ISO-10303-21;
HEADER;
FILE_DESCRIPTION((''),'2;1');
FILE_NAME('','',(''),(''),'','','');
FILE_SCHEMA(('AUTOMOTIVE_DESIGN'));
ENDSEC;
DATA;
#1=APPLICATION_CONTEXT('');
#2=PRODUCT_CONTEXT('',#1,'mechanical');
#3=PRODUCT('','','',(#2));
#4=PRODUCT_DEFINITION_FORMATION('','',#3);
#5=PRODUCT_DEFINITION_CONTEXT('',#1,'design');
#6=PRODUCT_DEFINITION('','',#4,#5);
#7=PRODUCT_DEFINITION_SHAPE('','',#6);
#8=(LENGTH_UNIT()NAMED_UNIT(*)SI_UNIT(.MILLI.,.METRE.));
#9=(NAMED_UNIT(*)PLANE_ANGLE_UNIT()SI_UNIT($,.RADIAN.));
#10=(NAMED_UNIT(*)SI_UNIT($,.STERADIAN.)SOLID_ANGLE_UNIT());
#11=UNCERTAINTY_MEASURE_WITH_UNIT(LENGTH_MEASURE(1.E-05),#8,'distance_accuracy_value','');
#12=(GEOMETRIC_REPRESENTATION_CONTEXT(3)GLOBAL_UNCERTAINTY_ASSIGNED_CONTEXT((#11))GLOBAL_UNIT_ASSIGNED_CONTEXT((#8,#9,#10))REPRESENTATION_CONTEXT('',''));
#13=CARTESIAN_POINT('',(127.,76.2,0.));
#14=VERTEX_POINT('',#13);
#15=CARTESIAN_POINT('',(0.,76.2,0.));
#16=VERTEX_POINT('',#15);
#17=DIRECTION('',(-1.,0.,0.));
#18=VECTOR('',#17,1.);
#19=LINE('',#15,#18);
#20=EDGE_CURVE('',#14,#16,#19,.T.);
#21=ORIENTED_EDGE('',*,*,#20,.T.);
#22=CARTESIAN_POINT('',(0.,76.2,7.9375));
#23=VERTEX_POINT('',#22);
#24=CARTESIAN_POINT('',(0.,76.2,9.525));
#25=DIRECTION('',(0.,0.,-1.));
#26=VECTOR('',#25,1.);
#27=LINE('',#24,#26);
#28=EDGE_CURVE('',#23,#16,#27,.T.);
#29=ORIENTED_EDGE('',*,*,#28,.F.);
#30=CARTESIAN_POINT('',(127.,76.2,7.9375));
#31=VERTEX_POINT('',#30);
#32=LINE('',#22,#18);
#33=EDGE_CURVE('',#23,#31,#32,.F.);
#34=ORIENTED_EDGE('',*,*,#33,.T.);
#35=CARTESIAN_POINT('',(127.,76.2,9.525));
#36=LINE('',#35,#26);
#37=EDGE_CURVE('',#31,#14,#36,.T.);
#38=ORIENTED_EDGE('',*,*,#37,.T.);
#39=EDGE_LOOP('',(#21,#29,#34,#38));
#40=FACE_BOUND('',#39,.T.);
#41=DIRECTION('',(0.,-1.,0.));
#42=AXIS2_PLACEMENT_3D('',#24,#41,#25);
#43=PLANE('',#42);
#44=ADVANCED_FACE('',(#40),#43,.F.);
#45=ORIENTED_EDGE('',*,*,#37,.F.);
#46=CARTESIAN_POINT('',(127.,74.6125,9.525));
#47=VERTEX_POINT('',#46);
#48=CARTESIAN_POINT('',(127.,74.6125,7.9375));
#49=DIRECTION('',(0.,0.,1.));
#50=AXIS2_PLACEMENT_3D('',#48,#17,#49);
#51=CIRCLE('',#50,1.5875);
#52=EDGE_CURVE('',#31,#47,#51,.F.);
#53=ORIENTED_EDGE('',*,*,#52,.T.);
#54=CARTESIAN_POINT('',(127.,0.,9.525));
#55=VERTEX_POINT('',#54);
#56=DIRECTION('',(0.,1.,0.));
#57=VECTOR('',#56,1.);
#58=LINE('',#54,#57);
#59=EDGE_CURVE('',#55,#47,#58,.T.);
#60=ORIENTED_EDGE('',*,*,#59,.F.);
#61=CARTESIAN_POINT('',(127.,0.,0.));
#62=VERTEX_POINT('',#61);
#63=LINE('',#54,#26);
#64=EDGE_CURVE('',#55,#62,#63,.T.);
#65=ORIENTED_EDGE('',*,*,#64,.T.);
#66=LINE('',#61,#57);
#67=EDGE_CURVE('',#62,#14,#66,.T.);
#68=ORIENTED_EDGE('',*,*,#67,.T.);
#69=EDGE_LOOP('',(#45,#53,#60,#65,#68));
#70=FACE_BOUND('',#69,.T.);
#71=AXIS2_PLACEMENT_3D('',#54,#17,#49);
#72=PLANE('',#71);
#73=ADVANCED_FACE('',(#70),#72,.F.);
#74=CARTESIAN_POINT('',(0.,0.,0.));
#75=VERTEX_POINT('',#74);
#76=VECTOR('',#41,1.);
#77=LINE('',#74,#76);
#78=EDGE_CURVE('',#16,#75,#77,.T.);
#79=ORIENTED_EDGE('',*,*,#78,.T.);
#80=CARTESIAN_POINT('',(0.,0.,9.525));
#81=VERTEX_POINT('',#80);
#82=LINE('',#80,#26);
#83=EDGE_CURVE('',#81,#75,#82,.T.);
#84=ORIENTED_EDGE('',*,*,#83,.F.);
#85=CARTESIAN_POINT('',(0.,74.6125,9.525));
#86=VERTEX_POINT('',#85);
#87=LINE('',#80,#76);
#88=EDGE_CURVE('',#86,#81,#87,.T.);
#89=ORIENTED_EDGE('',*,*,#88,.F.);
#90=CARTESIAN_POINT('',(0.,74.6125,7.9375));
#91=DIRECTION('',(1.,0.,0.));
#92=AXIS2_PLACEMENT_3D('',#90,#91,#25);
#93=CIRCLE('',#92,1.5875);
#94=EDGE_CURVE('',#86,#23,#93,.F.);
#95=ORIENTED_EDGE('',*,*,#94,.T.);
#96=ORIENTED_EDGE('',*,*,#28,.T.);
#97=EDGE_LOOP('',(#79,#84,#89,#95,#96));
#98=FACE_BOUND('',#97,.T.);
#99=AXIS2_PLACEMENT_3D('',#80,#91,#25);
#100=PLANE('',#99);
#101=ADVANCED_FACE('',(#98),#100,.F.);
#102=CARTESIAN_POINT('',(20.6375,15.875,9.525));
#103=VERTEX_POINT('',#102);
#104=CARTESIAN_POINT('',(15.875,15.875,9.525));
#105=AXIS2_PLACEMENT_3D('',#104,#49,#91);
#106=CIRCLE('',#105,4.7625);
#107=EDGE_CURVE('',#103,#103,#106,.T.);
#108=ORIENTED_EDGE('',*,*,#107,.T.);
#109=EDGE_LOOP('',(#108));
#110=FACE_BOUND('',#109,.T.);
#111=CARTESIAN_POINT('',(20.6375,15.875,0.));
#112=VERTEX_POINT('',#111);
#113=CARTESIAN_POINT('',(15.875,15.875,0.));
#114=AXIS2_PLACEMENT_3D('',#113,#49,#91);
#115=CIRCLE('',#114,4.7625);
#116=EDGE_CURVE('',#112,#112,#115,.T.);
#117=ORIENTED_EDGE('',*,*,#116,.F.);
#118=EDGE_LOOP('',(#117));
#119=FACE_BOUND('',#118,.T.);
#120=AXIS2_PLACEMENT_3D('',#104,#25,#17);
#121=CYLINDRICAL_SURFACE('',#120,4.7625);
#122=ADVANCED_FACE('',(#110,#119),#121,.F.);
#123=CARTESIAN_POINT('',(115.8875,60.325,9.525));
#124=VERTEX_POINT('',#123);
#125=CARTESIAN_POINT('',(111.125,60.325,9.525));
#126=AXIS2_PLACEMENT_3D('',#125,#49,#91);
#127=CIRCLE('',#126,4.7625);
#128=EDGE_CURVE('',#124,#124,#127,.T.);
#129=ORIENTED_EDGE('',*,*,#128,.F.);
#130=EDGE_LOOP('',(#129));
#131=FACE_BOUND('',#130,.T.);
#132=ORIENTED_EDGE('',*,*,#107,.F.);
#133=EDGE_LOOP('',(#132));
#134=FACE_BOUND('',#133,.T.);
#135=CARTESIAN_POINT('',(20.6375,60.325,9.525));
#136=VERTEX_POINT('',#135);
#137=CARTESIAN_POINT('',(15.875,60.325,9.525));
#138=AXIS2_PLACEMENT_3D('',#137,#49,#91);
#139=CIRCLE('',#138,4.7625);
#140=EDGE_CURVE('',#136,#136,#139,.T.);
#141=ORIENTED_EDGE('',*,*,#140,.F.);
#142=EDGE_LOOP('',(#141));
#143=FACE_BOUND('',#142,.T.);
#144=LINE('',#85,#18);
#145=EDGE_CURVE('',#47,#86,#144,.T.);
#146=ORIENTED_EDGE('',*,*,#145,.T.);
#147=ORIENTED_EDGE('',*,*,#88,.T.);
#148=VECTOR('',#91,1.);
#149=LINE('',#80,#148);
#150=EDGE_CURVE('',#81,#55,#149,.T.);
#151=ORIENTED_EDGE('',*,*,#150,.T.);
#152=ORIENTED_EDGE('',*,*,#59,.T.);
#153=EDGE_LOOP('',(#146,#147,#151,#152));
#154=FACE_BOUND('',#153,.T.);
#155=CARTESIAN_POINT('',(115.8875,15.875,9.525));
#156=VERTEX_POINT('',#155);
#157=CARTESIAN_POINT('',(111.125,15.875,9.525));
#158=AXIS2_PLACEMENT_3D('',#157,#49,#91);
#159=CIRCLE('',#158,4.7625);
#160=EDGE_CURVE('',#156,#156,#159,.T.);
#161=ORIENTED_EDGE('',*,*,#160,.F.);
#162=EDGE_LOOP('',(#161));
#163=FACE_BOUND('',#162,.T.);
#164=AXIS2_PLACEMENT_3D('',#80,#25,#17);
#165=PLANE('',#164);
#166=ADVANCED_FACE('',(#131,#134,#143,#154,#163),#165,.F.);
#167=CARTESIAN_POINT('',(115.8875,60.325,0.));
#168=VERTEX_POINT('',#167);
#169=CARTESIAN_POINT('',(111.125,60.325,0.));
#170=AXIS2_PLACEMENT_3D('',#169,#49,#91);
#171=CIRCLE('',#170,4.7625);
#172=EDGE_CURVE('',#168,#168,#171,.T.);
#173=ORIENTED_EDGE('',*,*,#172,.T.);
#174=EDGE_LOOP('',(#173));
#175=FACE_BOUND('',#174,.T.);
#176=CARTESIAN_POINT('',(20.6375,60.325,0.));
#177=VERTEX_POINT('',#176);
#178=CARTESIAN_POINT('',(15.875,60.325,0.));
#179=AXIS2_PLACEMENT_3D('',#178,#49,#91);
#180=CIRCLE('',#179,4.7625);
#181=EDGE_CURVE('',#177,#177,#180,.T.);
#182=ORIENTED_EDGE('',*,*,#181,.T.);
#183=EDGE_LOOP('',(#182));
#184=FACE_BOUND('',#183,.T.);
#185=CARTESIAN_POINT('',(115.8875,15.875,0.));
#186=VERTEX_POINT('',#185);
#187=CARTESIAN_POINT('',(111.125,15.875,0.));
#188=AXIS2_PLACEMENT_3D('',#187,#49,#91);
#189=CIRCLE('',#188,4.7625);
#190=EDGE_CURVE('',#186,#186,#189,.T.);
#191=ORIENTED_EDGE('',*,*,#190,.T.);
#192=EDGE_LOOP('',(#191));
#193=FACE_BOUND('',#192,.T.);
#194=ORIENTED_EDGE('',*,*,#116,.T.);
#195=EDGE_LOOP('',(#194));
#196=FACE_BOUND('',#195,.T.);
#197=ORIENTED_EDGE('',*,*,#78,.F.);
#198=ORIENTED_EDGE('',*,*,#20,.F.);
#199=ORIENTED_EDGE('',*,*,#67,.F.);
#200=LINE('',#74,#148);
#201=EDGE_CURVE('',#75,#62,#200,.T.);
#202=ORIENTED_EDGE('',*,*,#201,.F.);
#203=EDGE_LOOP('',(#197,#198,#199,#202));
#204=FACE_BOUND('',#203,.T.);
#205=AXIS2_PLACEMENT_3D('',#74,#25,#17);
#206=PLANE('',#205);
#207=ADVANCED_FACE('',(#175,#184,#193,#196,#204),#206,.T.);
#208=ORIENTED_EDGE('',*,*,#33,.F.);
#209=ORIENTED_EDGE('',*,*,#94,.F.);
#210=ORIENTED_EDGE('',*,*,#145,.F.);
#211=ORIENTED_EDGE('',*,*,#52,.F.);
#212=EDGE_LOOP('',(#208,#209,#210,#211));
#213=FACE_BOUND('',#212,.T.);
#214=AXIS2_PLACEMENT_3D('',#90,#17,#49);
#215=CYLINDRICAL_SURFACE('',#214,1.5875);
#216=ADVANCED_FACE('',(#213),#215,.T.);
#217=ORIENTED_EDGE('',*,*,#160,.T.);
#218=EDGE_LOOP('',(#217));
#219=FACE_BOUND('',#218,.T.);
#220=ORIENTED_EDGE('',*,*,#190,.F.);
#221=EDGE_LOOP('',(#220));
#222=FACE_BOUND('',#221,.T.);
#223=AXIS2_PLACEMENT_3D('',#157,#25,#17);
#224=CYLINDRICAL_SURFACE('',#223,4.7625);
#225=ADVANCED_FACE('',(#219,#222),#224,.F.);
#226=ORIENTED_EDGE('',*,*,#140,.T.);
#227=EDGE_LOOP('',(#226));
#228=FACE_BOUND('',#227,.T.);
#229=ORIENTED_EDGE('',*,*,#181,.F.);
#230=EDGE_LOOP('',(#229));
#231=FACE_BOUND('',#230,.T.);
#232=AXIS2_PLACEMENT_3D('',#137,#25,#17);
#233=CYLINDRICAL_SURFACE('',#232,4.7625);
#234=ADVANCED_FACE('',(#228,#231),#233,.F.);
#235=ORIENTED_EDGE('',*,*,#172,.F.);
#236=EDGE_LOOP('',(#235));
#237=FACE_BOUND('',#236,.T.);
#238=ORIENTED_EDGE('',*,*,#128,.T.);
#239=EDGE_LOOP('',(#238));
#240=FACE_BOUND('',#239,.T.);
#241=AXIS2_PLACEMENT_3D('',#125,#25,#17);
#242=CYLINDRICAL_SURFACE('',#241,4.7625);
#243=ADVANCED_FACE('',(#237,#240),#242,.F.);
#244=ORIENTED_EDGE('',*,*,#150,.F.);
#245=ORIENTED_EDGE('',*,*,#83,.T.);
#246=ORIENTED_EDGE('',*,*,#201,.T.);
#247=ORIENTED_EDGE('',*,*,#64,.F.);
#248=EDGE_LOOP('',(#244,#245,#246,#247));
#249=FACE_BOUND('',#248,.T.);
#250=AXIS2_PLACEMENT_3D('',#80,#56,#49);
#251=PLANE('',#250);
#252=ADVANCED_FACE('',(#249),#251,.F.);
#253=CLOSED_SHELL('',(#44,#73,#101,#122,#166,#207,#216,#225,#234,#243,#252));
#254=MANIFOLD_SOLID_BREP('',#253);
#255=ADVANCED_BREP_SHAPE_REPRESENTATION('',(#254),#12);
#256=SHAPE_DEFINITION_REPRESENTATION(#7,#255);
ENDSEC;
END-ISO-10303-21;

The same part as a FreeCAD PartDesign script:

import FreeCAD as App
import Part
import Sketcher
from FreeCAD import Vector
Q = App.Units.Quantity


def edges_at(feature, points):
    """Names of the edges that pass closest to the given points."""
    edges = feature.Shape.Edges
    near = lambda p: min(range(len(edges)), key=lambda i: edges[i].distToShape(Part.Vertex(*p))[0])
    return sorted({f"Edge{near(p) + 1}" for p in points})

doc = App.newDocument("Part")
body = doc.addObject("PartDesign::Body", "Body")

# Sketch on XY plane
sketch1 = body.newObject("Sketcher::SketchObject", "Sketch")
sketch1.AttachmentSupport = (doc.getObject("XY_Plane"), [""])
sketch1.MapMode = "FlatFace"
sketch1.addGeometry(Part.LineSegment(Vector(0, 76, 0), Vector(0, 0, 0)), False)
sketch1.addGeometry(Part.LineSegment(Vector(0, 0, 0), Vector(127, 0, 0)), False)
sketch1.addGeometry(Part.LineSegment(Vector(127, 0, 0), Vector(127, 76, 0)), False)
sketch1.addGeometry(Part.LineSegment(Vector(127, 76, 0), Vector(0, 76, 0)), False)
sketch1.addConstraint(Sketcher.Constraint("Coincident", 0, 2, 1, 1))
sketch1.addConstraint(Sketcher.Constraint("Coincident", 1, 2, 2, 1))
sketch1.addConstraint(Sketcher.Constraint("Coincident", 2, 2, 3, 1))
sketch1.addConstraint(Sketcher.Constraint("Coincident", 3, 2, 0, 1))
sketch1.addConstraint(Sketcher.Constraint("Vertical", 0))
sketch1.addConstraint(Sketcher.Constraint("Horizontal", 1))
sketch1.addConstraint(Sketcher.Constraint("Vertical", 2))
sketch1.addConstraint(Sketcher.Constraint("Horizontal", 3))
sketch1.addConstraint(Sketcher.Constraint("Coincident", 0, 2, -1, 1))
sketch1.addConstraint(Sketcher.Constraint("DistanceX", 1, 1, 1, 2, Q("5 in")))
sketch1.addConstraint(Sketcher.Constraint("DistanceY", 0, 2, 0, 1, Q("3 in")))
pad1 = body.newObject("PartDesign::Pad", "Pad")
pad1.Profile = sketch1
pad1.Length = Q("0.375 in")

# Sketch on XY plane
sketch2 = body.newObject("Sketcher::SketchObject", "Sketch001")
sketch2.AttachmentSupport = (doc.getObject("XY_Plane"), [""])
sketch2.MapMode = "FlatFace"
sketch2.addGeometry(Part.Circle(Vector(15.9, 15.9, 0), Vector(0, 0, 1), 4.8), False)
sketch2.addGeometry(Part.Circle(Vector(111.1, 15.9, 0), Vector(0, 0, 1), 4.8), False)
sketch2.addGeometry(Part.Circle(Vector(15.9, 60.3, 0), Vector(0, 0, 1), 4.8), False)
sketch2.addGeometry(Part.Circle(Vector(111.1, 60.3, 0), Vector(0, 0, 1), 4.8), False)
sketch2.addConstraint(Sketcher.Constraint("Equal", 0, 1))
sketch2.addConstraint(Sketcher.Constraint("Equal", 1, 2))
sketch2.addConstraint(Sketcher.Constraint("Equal", 2, 3))
sketch2.addConstraint(Sketcher.Constraint("Horizontal", 0, 3, 1, 3))
sketch2.addConstraint(Sketcher.Constraint("Horizontal", 2, 3, 3, 3))
sketch2.addConstraint(Sketcher.Constraint("Vertical", 0, 3, 2, 3))
sketch2.addConstraint(Sketcher.Constraint("Vertical", 1, 3, 3, 3))
sketch2.addConstraint(Sketcher.Constraint("Diameter", 0, Q("0.375 in")))
sketch2.addConstraint(Sketcher.Constraint("DistanceX", 0, 3, 1, 3, Q("3.75 in")))
sketch2.addConstraint(Sketcher.Constraint("DistanceY", 0, 3, 2, 3, Q("1.75 in")))
sketch2.addConstraint(Sketcher.Constraint("DistanceX", -1, 1, 0, 3, Q("0.625 in")))
sketch2.addConstraint(Sketcher.Constraint("DistanceY", -1, 1, 0, 3, Q("0.625 in")))
pocket1 = body.newObject("PartDesign::Pocket", "Pocket")
pocket1.Profile = sketch2
pocket1.Type = "ThroughAll"
pocket1.Reversed = True
doc.recompute()

fillet = body.newObject("PartDesign::Fillet", "Fillet")
fillet.Base = (pocket1, edges_at(pocket1, [(63.5, 76.2, 9.525)]))
fillet.Radius = Q("0.0625 in")

doc.recompute()
